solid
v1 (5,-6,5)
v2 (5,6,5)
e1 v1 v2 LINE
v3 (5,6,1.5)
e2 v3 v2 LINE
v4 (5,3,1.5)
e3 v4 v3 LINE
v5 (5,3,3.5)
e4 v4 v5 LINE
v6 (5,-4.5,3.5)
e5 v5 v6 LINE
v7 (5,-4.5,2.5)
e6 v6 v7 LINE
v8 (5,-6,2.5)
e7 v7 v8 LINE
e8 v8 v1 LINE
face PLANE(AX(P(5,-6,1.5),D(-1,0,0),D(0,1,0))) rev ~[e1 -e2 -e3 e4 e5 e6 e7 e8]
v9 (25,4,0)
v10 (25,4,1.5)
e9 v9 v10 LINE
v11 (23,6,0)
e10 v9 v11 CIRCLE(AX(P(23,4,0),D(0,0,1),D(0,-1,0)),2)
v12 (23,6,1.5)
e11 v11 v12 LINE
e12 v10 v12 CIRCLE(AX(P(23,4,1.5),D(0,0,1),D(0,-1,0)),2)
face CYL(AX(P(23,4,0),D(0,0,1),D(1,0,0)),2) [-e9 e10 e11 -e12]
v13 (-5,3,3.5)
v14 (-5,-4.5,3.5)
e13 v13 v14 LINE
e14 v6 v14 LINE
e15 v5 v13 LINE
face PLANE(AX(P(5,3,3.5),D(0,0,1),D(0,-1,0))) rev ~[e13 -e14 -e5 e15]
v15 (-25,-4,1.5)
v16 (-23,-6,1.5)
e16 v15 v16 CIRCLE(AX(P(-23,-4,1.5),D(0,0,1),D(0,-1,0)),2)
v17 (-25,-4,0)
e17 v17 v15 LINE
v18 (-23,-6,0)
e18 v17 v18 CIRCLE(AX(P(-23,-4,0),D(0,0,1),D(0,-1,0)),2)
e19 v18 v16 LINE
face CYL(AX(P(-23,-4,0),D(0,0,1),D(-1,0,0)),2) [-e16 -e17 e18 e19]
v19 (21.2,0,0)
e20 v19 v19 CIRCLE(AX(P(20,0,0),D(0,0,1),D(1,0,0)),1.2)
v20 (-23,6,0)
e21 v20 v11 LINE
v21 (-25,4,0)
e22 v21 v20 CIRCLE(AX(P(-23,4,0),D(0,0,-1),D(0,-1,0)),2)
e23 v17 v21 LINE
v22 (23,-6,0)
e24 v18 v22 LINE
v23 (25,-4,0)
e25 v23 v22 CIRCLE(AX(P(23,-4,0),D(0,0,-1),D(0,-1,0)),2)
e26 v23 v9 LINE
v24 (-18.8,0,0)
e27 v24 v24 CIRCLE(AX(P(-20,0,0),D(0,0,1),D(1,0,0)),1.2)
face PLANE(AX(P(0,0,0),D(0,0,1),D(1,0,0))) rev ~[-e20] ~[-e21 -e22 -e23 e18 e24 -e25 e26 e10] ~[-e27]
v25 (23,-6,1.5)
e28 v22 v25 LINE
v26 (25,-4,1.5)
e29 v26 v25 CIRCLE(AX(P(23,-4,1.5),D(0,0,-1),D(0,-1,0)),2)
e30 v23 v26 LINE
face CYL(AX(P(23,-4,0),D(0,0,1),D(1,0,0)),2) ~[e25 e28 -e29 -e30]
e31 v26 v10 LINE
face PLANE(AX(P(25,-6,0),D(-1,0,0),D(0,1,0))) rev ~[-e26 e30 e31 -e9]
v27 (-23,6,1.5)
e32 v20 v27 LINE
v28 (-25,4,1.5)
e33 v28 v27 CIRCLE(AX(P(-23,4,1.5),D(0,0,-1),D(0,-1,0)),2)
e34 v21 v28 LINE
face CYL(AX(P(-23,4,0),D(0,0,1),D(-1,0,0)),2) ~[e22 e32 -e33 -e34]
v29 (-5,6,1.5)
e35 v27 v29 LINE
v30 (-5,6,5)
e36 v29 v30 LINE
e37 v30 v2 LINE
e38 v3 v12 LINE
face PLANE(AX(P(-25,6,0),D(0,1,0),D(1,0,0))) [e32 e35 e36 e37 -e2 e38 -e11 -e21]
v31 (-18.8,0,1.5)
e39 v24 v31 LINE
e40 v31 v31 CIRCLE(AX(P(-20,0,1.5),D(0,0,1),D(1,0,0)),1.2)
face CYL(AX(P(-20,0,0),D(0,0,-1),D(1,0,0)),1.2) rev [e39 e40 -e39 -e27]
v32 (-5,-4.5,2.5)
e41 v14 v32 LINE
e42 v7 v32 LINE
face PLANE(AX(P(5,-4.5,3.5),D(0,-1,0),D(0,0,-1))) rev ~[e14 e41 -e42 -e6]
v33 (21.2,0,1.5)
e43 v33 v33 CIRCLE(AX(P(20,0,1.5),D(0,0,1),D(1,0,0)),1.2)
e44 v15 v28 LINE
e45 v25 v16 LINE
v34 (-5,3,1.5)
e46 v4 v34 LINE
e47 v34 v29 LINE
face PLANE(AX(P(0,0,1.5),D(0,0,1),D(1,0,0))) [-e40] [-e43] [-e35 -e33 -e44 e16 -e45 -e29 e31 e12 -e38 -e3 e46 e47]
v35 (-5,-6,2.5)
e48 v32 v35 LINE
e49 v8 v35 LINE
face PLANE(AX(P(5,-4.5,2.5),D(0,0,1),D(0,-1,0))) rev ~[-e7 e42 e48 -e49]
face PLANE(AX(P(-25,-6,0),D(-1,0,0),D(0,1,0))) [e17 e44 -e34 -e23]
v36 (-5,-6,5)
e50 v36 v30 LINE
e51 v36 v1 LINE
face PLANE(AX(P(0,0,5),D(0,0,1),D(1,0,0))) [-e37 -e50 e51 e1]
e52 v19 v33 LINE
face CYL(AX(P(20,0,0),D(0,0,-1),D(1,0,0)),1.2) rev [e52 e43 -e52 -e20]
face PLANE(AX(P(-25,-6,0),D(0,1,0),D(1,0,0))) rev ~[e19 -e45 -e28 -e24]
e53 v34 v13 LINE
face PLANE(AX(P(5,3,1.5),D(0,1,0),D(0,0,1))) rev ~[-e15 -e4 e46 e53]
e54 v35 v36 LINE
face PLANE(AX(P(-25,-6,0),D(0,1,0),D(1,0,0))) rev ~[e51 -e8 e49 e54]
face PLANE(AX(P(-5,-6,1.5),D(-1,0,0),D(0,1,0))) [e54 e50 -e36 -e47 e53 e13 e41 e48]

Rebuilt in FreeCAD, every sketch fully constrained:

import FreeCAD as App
import Part
import Sketcher
from FreeCAD import Vector
Q = App.Units.Quantity


def edges_at(feature, points):
    """Names of the edges that pass closest to the given points."""
    edges = feature.Shape.Edges
    near = lambda p: min(range(len(edges)), key=lambda i: edges[i].distToShape(Part.Vertex(*p))[0])
    return sorted({f"Edge{near(p) + 1}" for p in points})

doc = App.newDocument("Part")
body = doc.addObject("PartDesign::Body", "Body")

# Sketch on XY plane
sketch1 = body.newObject("Sketcher::SketchObject", "Sketch")
sketch1.AttachmentSupport = (doc.getObject("XY_Plane"), [""])
sketch1.MapMode = "FlatFace"
sketch1.addGeometry(Part.LineSegment(Vector(-25, 6, 0), Vector(-25, -6, 0)), False)
sketch1.addGeometry(Part.LineSegment(Vector(-25, -6, 0), Vector(25, -6, 0)), False)
sketch1.addGeometry(Part.LineSegment(Vector(25, -6, 0), Vector(25, 6, 0)), False)
sketch1.addGeometry(Part.LineSegment(Vector(25, 6, 0), Vector(-25, 6, 0)), False)
sketch1.addGeometry(Part.Circle(Vector(-20, 0, 0), Vector(0, 0, 1), 1.2), False)
sketch1.addGeometry(Part.Circle(Vector(20, 0, 0), Vector(0, 0, 1), 1.2), False)
sketch1.addConstraint(Sketcher.Constraint("Coincident", 0, 2, 1, 1))
sketch1.addConstraint(Sketcher.Constraint("Coincident", 1, 2, 2, 1))
sketch1.addConstraint(Sketcher.Constraint("Coincident", 2, 2, 3, 1))
sketch1.addConstraint(Sketcher.Constraint("Coincident", 3, 2, 0, 1))
sketch1.addConstraint(Sketcher.Constraint("Vertical", 0))
sketch1.addConstraint(Sketcher.Constraint("Horizontal", 1))
sketch1.addConstraint(Sketcher.Constraint("Vertical", 2))
sketch1.addConstraint(Sketcher.Constraint("Horizontal", 3))
sketch1.addConstraint(Sketcher.Constraint("Equal", 4, 5))
sketch1.addConstraint(Sketcher.Constraint("Symmetric", 4, 3, 5, 3, -1, 1))
sketch1.addConstraint(Sketcher.Constraint("Symmetric", 0, 2, 2, 2, -1, 1))
sketch1.addConstraint(Sketcher.Constraint("PointOnObject", 4, 3, -1))
sketch1.addConstraint(Sketcher.Constraint("Diameter", 4, Q("2.4 mm")))
sketch1.addConstraint(Sketcher.Constraint("DistanceX", 1, 1, 1, 2, Q("50 mm")))
sketch1.addConstraint(Sketcher.Constraint("DistanceY", 0, 2, 0, 1, Q("12 mm")))
sketch1.addConstraint(Sketcher.Constraint("DistanceX", 4, 3, -1, 1, Q("20 mm")))
pad1 = body.newObject("PartDesign::Pad", "Pad")
pad1.Profile = sketch1
pad1.Length = 1.5

# Sketch on XY plane
sketch2 = body.newObject("Sketcher::SketchObject", "Sketch001")
sketch2.AttachmentSupport = (doc.getObject("XY_Plane"), [""])
sketch2.MapMode = "FlatFace"
sketch2.AttachmentOffset = App.Placement(Vector(0, 0, 1.5), App.Rotation())
sketch2.addGeometry(Part.LineSegment(Vector(-5, 6, 0), Vector(-5, -6, 0)), False)
sketch2.addGeometry(Part.LineSegment(Vector(-5, -6, 0), Vector(5, -6, 0)), False)
sketch2.addGeometry(Part.LineSegment(Vector(5, -6, 0), Vector(5, 6, 0)), False)
sketch2.addGeometry(Part.LineSegment(Vector(5, 6, 0), Vector(-5, 6, 0)), False)
sketch2.addConstraint(Sketcher.Constraint("Coincident", 0, 2, 1, 1))
sketch2.addConstraint(Sketcher.Constraint("Coincident", 1, 2, 2, 1))
sketch2.addConstraint(Sketcher.Constraint("Coincident", 2, 2, 3, 1))
sketch2.addConstraint(Sketcher.Constraint("Coincident", 3, 2, 0, 1))
sketch2.addConstraint(Sketcher.Constraint("Vertical", 0))
sketch2.addConstraint(Sketcher.Constraint("Horizontal", 1))
sketch2.addConstraint(Sketcher.Constraint("Vertical", 2))
sketch2.addConstraint(Sketcher.Constraint("Horizontal", 3))
sketch2.addConstraint(Sketcher.Constraint("Symmetric", 0, 2, 2, 2, -1, 1))
sketch2.addConstraint(Sketcher.Constraint("DistanceX", 1, 1, 1, 2, Q("10 mm")))
sketch2.addConstraint(Sketcher.Constraint("DistanceY", 0, 2, 0, 1, Q("12 mm")))
pad2 = body.newObject("PartDesign::Pad", "Pad001")
pad2.Profile = sketch2
pad2.Length = 3.5

# Sketch on YZ plane
sketch3 = body.newObject("Sketcher::SketchObject", "Sketch002")
sketch3.AttachmentSupport = (doc.getObject("YZ_Plane"), [""])
sketch3.MapMode = "FlatFace"
sketch3.AttachmentOffset = App.Placement(Vector(0, 0, 5), App.Rotation())
sketch3.addGeometry(Part.LineSegment(Vector(3, 1.5, 0), Vector(3, 3.5, 0)), False)
sketch3.addGeometry(Part.LineSegment(Vector(3, 3.5, 0), Vector(-4.5, 3.5, 0)), False)
sketch3.addGeometry(Part.LineSegment(Vector(-4.5, 3.5, 0), Vector(-4.5, 2.5, 0)), False)
sketch3.addGeometry(Part.LineSegment(Vector(-4.5, 2.5, 0), Vector(-6, 2.5, 0)), False)
sketch3.addGeometry(Part.LineSegment(Vector(-6, 2.5, 0), Vector(-6, 1.5, 0)), False)
sketch3.addGeometry(Part.LineSegment(Vector(-6, 1.5, 0), Vector(3, 1.5, 0)), False)
sketch3.addConstraint(Sketcher.Constraint("Coincident", 0, 2, 1, 1))
sketch3.addConstraint(Sketcher.Constraint("Coincident", 1, 2, 2, 1))
sketch3.addConstraint(Sketcher.Constraint("Coincident", 2, 2, 3, 1))
sketch3.addConstraint(Sketcher.Constraint("Coincident", 3, 2, 4, 1))
sketch3.addConstraint(Sketcher.Constraint("Coincident", 4, 2, 5, 1))
sketch3.addConstraint(Sketcher.Constraint("Coincident", 5, 2, 0, 1))
sketch3.addConstraint(Sketcher.Constraint("Vertical", 0))
sketch3.addConstraint(Sketcher.Constraint("Horizontal", 1))
sketch3.addConstraint(Sketcher.Constraint("Vertical", 2))
sketch3.addConstraint(Sketcher.Constraint("Horizontal", 3))
sketch3.addConstraint(Sketcher.Constraint("Vertical", 4))
sketch3.addConstraint(Sketcher.Constraint("Horizontal", 5))
sketch3.addConstraint(Sketcher.Constraint("Equal", 2, 4))
sketch3.addConstraint(Sketcher.Constraint("DistanceX", 5, 1, 5, 2, Q("9 mm")))
sketch3.addConstraint(Sketcher.Constraint("DistanceY", 0, 1, 0, 2, Q("2 mm")))
sketch3.addConstraint(Sketcher.Constraint("DistanceX", 1, 2, 1, 1, Q("7.5 mm")))
sketch3.addConstraint(Sketcher.Constraint("DistanceX", -1, 1, 0, 2, Q("3 mm")))
sketch3.addConstraint(Sketcher.Constraint("DistanceY", -1, 1, 0, 2, Q("3.5 mm")))
pocket1 = body.newObject("PartDesign::Pocket", "Pocket")
pocket1.Profile = sketch3
pocket1.Length = 10
doc.recompute()

fillet = body.newObject("PartDesign::Fillet", "Fillet")
fillet.Base = (pocket1, edges_at(pocket1, [
    (25, -6, 0.75),
    (25, 6, 0.75),
    (-25, -6, 0.75),
    (-25, 6, 0.75),
]))
fillet.Radius = 2

doc.recompute()
